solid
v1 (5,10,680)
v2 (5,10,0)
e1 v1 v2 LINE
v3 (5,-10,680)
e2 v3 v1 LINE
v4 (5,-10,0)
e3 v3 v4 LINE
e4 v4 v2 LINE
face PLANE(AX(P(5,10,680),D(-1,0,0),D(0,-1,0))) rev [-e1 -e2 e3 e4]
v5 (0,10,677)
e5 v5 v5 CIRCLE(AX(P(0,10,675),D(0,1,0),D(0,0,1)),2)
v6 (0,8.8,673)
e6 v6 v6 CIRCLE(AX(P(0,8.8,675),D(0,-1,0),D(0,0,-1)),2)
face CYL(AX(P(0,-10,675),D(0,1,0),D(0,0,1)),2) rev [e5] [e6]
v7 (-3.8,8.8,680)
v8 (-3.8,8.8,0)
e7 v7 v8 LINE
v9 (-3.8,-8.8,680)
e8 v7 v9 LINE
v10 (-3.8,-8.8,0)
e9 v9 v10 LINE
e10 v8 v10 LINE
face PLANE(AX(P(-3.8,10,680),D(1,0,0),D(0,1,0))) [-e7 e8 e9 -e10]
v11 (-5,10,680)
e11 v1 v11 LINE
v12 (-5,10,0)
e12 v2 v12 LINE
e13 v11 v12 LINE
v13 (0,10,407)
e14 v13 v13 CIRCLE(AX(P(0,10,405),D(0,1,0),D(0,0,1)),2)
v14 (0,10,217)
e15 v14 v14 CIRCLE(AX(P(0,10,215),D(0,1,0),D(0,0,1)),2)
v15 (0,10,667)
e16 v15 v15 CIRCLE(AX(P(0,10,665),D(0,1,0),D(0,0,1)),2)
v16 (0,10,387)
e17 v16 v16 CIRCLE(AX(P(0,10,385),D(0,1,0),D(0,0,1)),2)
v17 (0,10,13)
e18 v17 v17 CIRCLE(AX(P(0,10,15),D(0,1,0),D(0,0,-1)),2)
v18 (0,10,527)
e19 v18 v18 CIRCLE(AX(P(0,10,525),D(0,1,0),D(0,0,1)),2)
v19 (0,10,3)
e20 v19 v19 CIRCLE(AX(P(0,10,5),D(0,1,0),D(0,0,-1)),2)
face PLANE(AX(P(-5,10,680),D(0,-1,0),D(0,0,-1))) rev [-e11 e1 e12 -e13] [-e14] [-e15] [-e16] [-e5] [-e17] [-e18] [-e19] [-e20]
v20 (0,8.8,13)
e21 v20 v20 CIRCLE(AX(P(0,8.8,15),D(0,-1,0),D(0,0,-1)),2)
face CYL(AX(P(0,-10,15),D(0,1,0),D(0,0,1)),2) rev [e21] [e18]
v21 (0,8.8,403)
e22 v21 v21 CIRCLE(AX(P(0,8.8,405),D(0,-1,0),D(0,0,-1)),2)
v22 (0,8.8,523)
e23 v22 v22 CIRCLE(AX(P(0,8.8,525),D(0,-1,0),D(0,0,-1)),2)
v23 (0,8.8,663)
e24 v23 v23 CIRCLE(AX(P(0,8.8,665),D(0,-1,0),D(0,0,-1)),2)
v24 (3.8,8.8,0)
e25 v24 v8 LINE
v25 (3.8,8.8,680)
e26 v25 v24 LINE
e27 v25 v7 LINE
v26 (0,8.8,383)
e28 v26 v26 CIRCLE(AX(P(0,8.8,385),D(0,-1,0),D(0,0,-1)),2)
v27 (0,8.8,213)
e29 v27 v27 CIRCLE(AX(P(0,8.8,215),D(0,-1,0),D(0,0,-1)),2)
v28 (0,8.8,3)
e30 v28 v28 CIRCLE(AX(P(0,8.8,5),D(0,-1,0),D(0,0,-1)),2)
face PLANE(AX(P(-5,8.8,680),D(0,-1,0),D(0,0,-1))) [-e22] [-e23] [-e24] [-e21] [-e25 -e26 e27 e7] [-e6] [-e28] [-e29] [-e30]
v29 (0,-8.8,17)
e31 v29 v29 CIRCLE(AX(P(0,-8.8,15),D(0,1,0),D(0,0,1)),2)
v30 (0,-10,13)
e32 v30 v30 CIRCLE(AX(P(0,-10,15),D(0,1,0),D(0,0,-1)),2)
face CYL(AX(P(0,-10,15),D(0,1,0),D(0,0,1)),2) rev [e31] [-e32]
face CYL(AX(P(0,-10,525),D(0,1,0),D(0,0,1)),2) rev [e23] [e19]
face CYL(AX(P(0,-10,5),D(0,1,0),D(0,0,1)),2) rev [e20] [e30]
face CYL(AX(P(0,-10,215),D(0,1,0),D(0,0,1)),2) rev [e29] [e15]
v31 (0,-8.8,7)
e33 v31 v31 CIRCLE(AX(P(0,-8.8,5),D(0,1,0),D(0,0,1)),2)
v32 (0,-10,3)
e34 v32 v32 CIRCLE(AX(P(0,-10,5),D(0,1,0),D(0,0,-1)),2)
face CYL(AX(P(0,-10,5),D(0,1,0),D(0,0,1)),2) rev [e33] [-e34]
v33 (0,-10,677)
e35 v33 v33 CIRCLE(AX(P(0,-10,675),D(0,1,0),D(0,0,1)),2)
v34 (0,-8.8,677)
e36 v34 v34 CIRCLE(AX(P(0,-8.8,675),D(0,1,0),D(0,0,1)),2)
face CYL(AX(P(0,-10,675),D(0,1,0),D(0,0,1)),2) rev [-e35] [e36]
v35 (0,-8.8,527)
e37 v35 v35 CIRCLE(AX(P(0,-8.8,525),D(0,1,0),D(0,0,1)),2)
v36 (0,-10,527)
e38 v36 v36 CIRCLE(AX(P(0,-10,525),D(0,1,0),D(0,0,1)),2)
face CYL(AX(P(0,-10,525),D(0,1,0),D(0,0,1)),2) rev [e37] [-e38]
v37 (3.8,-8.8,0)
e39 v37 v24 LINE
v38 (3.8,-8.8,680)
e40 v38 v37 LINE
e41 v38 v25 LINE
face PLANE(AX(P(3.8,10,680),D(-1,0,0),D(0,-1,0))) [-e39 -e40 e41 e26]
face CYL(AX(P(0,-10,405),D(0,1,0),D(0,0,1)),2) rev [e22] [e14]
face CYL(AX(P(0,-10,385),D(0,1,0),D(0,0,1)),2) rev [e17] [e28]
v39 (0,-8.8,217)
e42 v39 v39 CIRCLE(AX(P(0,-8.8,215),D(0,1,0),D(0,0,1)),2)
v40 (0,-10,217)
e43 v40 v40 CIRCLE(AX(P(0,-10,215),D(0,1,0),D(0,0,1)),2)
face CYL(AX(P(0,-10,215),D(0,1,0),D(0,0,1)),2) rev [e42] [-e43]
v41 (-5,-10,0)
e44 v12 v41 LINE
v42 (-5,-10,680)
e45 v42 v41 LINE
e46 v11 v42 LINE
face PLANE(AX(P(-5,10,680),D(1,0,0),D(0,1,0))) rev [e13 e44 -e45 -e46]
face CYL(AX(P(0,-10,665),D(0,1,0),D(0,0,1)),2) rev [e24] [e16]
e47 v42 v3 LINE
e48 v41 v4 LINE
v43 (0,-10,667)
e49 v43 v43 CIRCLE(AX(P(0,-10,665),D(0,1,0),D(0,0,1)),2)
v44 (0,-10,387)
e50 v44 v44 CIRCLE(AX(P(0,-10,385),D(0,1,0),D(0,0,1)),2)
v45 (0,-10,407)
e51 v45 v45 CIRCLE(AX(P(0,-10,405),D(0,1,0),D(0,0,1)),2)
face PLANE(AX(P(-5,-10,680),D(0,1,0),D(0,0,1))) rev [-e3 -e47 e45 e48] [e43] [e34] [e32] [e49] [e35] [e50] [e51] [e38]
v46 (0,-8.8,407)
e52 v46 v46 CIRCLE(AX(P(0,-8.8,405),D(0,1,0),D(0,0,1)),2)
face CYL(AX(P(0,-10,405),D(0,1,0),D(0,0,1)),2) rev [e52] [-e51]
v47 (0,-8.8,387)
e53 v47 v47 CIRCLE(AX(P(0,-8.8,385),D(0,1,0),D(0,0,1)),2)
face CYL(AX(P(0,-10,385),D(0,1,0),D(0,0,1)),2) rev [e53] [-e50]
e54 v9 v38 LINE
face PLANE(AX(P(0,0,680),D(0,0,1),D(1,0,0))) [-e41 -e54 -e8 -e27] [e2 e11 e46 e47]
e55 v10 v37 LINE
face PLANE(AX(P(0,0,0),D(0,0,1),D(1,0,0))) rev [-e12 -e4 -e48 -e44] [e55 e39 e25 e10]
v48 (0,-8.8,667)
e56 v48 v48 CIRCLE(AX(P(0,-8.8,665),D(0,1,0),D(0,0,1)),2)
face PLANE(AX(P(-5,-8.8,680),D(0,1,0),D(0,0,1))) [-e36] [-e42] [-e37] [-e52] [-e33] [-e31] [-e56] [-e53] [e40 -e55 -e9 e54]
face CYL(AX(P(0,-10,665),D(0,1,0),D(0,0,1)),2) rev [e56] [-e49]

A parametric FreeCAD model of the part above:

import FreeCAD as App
import Part
import Sketcher

V = App.Vector
Q = App.Units.Quantity


def add_polygon(sketch, points):
    """Adds a closed chain of lines whose ends are joined by coincident constraints."""
    first, n = sketch.GeometryCount, len(points)
    for a, b in zip(points, points[1:] + points[:1]):
        sketch.addGeometry(Part.LineSegment(App.Vector(*a, 0), App.Vector(*b, 0)), False)
    for i in range(n):
        sketch.addConstraint(Sketcher.Constraint("Coincident", first + i, 2, first + (i + 1) % n, 1))

doc = App.newDocument("Part")
body = doc.addObject("PartDesign::Body", "Body")

sketch1 = doc.addObject("Sketcher::SketchObject", "Sketch")
body.addObject(sketch1)
sketch1.AttachmentSupport = (doc.XY_Plane, [""])
sketch1.MapMode = "FlatFace"
add_polygon(sketch1, [(-5, 10), (-5, -10), (5, -10), (5, 10)])
add_polygon(sketch1, [(4, -9), (-4, -9), (-4, 9), (4, 9)])
sketch1.addConstraint([
    Sketcher.Constraint("Vertical", 0),
    Sketcher.Constraint("Horizontal", 1),
    Sketcher.Constraint("Vertical", 2),
    Sketcher.Constraint("Horizontal", 3),
    Sketcher.Constraint("Horizontal", 4),
    Sketcher.Constraint("Vertical", 5),
    Sketcher.Constraint("Horizontal", 6),
    Sketcher.Constraint("Vertical", 7),
    Sketcher.Constraint("Symmetric", 0, 2, 2, 2, -1, 1),
    Sketcher.Constraint("Symmetric", 4, 2, 6, 2, -1, 1),
    Sketcher.Constraint("DistanceX", 1, 1, 1, 2, Q("10 mm")),
    Sketcher.Constraint("DistanceY", 0, 2, 0, 1, Q("20 mm")),
    Sketcher.Constraint("DistanceX", 4, 2, 4, 1, Q("7.6 mm")),
    Sketcher.Constraint("DistanceY", 5, 1, 5, 2, Q("17.6 mm")),
])
pad1 = doc.addObject("PartDesign::Pad", "Pad")
body.addObject(pad1)
pad1.Profile = sketch1
pad1.Length = 680

sketch2 = doc.addObject("Sketcher::SketchObject", "Sketch001")
body.addObject(sketch2)
sketch2.AttachmentSupport = (doc.XZ_Plane, [""])
sketch2.MapMode = "FlatFace"
sketch2.AttachmentOffset = App.Placement(V(0, 0, -10), App.Rotation())
sketch2.addGeometry([
    Part.Circle(V(0, 665, 0), V(0, 0, 1), 2),
    Part.Circle(V(0, 675, 0), V(0, 0, 1), 2),
    Part.Circle(V(0, 5, 0), V(0, 0, 1), 2),
    Part.Circle(V(0, 15, 0), V(0, 0, 1), 2),
    Part.Circle(V(0, 525, 0), V(0, 0, 1), 2),
    Part.Circle(V(0, 405, 0), V(0, 0, 1), 2),
    Part.Circle(V(0, 215, 0), V(0, 0, 1), 2),
    Part.Circle(V(0, 385, 0), V(0, 0, 1), 2),
], False)
sketch2.addConstraint([
    Sketcher.Constraint("Equal", 0, 1),
    Sketcher.Constraint("Equal", 1, 2),
    Sketcher.Constraint("Equal", 2, 3),
    Sketcher.Constraint("Equal", 3, 4),
    Sketcher.Constraint("Equal", 4, 5),
    Sketcher.Constraint("Equal", 5, 6),
    Sketcher.Constraint("Equal", 6, 7),
    Sketcher.Constraint("PointOnObject", 0, 3, -2),
    Sketcher.Constraint("PointOnObject", 1, 3, -2),
    Sketcher.Constraint("PointOnObject", 2, 3, -2),
    Sketcher.Constraint("PointOnObject", 3, 3, -2),
    Sketcher.Constraint("PointOnObject", 4, 3, -2),
    Sketcher.Constraint("PointOnObject", 5, 3, -2),
    Sketcher.Constraint("PointOnObject", 6, 3, -2),
    Sketcher.Constraint("PointOnObject", 7, 3, -2),
    Sketcher.Constraint("Diameter", 0, Q("4 mm")),
    Sketcher.Constraint("DistanceY", -1, 1, 0, 3, Q("665 mm")),
    Sketcher.Constraint("DistanceY", -1, 1, 1, 3, Q("675 mm")),
    Sketcher.Constraint("DistanceY", -1, 1, 2, 3, Q("5 mm")),
    Sketcher.Constraint("DistanceY", -1, 1, 3, 3, Q("15 mm")),
    Sketcher.Constraint("DistanceY", -1, 1, 4, 3, Q("525 mm")),
    Sketcher.Constraint("DistanceY", -1, 1, 5, 3, Q("405 mm")),
    Sketcher.Constraint("DistanceY", -1, 1, 6, 3, Q("215 mm")),
    Sketcher.Constraint("DistanceY", -1, 1, 7, 3, Q("385 mm")),
])
pocket1 = doc.addObject("PartDesign::Pocket", "Pocket")
body.addObject(pocket1)
pocket1.Profile = sketch2
pocket1.Type = "ThroughAll"
pocket1.Reversed = True

doc.recompute()
